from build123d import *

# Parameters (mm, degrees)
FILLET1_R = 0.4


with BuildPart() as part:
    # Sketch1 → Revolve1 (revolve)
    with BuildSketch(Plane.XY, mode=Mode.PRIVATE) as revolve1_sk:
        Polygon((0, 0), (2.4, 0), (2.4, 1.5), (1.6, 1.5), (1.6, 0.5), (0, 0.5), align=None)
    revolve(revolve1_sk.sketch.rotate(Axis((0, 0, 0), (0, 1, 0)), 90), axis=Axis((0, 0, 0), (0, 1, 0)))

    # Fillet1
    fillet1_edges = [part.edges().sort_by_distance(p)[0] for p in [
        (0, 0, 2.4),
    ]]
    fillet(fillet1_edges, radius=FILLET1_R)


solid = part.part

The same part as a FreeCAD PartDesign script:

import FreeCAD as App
import Part
import Sketcher

V = App.Vector


def edges_at(feature, points):
    """Names of the edges that pass closest to the given points."""
    edges = feature.Shape.Edges
    near = lambda p: min(range(len(edges)), key=lambda i: edges[i].distToShape(Part.Vertex(*p))[0])
    return sorted({f"Edge{near(p) + 1}" for p in points})


def add_polygon(sketch, points):
    """Adds a closed chain of lines whose ends are joined by coincident constraints."""
    first, n = sketch.GeometryCount, len(points)
    for a, b in zip(points, points[1:] + points[:1]):
        sketch.addGeometry(Part.LineSegment(App.Vector(*a, 0), App.Vector(*b, 0)), False)
    for i in range(n):
        sketch.addConstraint(Sketcher.Constraint("Coincident", first + i, 2, first + (i + 1) % n, 1))

doc = App.newDocument("Part")
body = doc.addObject("PartDesign::Body", "Body")

sketch1 = body.newObject("Sketcher::SketchObject", "Sketch")
sketch1.AttachmentSupport = (doc.getObject("XY_Plane"), [""])
sketch1.MapMode = "FlatFace"
add_polygon(sketch1, [(0, 0), (2.4, 0), (2.4, 1.5), (1.6, 1.5), (1.6, 0.5), (0, 0.5)])
sketch1.addConstraint([
    Sketcher.Constraint("Horizontal", 0),
    Sketcher.Constraint("Vertical", 1),
    Sketcher.Constraint("Horizontal", 2),
    Sketcher.Constraint("Vertical", 3),
    Sketcher.Constraint("Horizontal", 4),
    Sketcher.Constraint("Vertical", 5),
    Sketcher.Constraint("Coincident", 5, 2, -1, 1),
    Sketcher.Constraint("DistanceY", 3, 2, 3, 1, 1.0),
    Sketcher.Constraint("DistanceX", 0, 1, 0, 2, 2.4),
    Sketcher.Constraint("DistanceX", 2, 2, 2, 1, 0.8),
    Sketcher.Constraint("DistanceY", 1, 1, 1, 2, 1.5),
])
revolution = body.newObject("PartDesign::Revolution", "Revolution")
revolution.Profile = sketch1
revolution.ReferenceAxis = (sketch1, ["V_Axis"])
revolution.Angle = 360
doc.recompute()

fillet = body.newObject("PartDesign::Fillet", "Fillet")
fillet.Base = (revolution, edges_at(revolution, [(0, 0, 2.4)]))
fillet.Radius = 0.4

doc.recompute()
